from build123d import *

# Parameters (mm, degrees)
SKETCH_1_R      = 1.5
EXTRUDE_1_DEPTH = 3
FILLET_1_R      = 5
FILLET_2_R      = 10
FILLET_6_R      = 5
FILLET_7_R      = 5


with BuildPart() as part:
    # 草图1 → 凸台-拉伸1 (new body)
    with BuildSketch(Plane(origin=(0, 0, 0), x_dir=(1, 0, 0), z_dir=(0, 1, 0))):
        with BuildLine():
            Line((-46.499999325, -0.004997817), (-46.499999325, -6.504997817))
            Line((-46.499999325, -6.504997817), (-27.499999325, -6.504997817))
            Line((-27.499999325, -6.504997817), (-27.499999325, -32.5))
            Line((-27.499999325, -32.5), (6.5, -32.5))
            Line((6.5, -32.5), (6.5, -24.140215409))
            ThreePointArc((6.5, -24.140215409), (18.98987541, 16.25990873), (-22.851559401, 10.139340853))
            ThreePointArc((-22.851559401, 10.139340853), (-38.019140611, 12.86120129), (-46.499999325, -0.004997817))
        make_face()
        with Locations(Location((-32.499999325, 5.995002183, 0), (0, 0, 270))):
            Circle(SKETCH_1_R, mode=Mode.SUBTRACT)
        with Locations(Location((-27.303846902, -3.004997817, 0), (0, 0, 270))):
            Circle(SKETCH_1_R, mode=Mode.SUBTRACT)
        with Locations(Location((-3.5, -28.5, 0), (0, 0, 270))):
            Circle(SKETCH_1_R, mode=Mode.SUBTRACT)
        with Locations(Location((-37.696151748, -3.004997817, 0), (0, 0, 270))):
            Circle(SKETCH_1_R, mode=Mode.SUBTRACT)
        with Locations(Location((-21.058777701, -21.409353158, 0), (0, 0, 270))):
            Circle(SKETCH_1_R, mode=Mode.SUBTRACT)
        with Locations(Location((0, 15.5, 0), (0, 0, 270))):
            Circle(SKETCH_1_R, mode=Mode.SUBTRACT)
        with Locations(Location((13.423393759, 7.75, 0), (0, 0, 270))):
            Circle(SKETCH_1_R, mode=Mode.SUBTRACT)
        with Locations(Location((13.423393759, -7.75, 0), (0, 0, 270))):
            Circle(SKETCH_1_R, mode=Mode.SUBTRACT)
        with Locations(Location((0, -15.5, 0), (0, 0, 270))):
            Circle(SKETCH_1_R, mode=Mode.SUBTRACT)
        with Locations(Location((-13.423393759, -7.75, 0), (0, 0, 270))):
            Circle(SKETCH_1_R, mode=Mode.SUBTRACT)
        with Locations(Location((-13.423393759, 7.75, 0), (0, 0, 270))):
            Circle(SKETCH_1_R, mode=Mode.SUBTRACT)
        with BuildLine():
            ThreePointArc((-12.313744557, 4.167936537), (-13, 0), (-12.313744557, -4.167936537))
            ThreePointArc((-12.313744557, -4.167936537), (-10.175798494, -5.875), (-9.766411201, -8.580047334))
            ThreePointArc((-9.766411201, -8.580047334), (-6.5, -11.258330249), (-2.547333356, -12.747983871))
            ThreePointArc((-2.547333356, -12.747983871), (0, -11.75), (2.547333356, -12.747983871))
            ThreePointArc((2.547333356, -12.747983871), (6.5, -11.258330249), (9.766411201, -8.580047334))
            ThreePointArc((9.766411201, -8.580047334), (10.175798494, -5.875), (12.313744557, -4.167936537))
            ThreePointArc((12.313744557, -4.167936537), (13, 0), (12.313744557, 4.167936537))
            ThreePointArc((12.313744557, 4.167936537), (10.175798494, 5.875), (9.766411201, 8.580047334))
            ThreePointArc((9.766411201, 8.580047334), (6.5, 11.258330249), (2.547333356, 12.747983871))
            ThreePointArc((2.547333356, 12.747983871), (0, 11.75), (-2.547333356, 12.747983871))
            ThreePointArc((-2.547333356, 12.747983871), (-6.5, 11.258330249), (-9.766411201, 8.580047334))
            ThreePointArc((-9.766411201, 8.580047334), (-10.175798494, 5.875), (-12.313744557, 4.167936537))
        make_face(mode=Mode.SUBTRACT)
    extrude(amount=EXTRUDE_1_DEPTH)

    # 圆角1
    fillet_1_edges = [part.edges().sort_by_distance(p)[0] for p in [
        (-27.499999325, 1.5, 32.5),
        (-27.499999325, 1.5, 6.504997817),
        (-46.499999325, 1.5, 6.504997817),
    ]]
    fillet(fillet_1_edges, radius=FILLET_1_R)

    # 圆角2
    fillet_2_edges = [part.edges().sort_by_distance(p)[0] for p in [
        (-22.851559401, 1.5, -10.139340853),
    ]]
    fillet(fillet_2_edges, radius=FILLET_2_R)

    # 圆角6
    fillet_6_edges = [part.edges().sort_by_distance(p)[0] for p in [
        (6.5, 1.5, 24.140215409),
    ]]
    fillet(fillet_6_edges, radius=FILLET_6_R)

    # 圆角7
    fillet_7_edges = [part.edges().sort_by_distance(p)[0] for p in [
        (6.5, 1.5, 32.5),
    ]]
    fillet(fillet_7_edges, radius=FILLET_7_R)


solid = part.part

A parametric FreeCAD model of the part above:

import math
import FreeCAD as App
import Part
import Sketcher
Q = App.Units.Quantity


def edges_at(feature, points):
    """Names of the edges that pass closest to the given points."""
    edges = feature.Shape.Edges
    near = lambda p: min(range(len(edges)), key=lambda i: edges[i].distToShape(Part.Vertex(*p))[0])
    return sorted({f"Edge{near(p) + 1}" for p in points})

doc = App.newDocument("Part")
params = doc.addObject("Spreadsheet::Sheet", "Params")
for row, (alias, value) in enumerate([
    ("sketch1_diameter", "3 mm"),
    ("sketch1_radius", "25 mm"),
    ("sketch1_radius2", "14 mm"),
    ("sketch1_radius3", "13 mm"),
    ("sketch1_width", "19 mm"),
    ("pad1_length", "3 mm"),
    ("fillet_radius", "5 mm"),
    ("fillet2_radius", "10 mm"),
    ("fillet3_radius", "5 mm"),
    ("fillet4_radius", "5 mm"),
], start=1):
    params.set(f"A{row}", alias)
    params.set(f"B{row}", "=" + value)
    params.setAlias(f"B{row}", alias)

body = doc.addObject("PartDesign::Body", "Body")

# Sketch on XZ plane
sketch1 = body.newObject("Sketcher::SketchObject", "Sketch")
sketch1.AttachmentSupport = (doc.getObject("XZ_Plane"), [""])
sketch1.MapMode = "FlatFace"
sketch1.addGeometry([
    Part.LineSegment(App.Vector(-46.499999, 0.004998, 0), App.Vector(-46.499999, 6.504998, 0)),  # 0
    Part.LineSegment(App.Vector(-46.499999, 6.504998, 0), App.Vector(-27.499999, 6.504998, 0)),  # 1
    Part.LineSegment(App.Vector(-27.499999, 6.504998, 0), App.Vector(-27.499999, 32.5, 0)),  # 2
    Part.LineSegment(App.Vector(-27.499999, 32.5, 0), App.Vector(6.5, 32.5, 0)),  # 3
    Part.LineSegment(App.Vector(6.5, 32.5, 0), App.Vector(6.5, 24.140215, 0)),  # 4
    Part.ArcOfCircle(Part.Circle(App.Vector(0, 0, 0), App.Vector(0, 0, 1), 25), math.radians(-156.072921), math.radians(74.929938)),  # 5
    Part.ArcOfCircle(Part.Circle(App.Vector(-32.499999, 0.004998, 0), App.Vector(0, 0, 1), 14), math.radians(-180), math.radians(-46.435219)),  # 6
    Part.Circle(App.Vector(-21.058778, 21.409353, 0), App.Vector(0, 0, 1), 1.5),  # 7
    Part.Circle(App.Vector(-13.423394, 7.75, 0), App.Vector(0, 0, 1), 1.5),  # 8
    Part.Circle(App.Vector(-3.5, 28.5, 0), App.Vector(0, 0, 1), 1.5),  # 9
    Part.Circle(App.Vector(0, 15.5, 0), App.Vector(0, 0, 1), 1.5),  # 10
    Part.Circle(App.Vector(13.423394, 7.75, 0), App.Vector(0, 0, 1), 1.5),  # 11
    Part.Circle(App.Vector(-37.696152, 3.004998, 0), App.Vector(0, 0, 1), 1.5),  # 12
    Part.Circle(App.Vector(-27.303847, 3.004998, 0), App.Vector(0, 0, 1), 1.5),  # 13
    Part.Circle(App.Vector(-32.499999, -5.995002, 0), App.Vector(0, 0, 1), 1.5),  # 14
    Part.Circle(App.Vector(-13.423394, -7.75, 0), App.Vector(0, 0, 1), 1.5),  # 15
    Part.ArcOfCircle(Part.Circle(App.Vector(0, 0, 0), App.Vector(0, 0, 1), 13), math.radians(161.30015), math.radians(198.69985)),  # 16
    Part.ArcOfCircle(Part.Circle(App.Vector(-13.423394, -7.75, 0), App.Vector(0, 0, 1), 3.75), math.radians(-12.7881), math.radians(72.7881)),  # 17
    Part.ArcOfCircle(Part.Circle(App.Vector(0, 0, 0), App.Vector(0, 0, 1), 13), math.radians(-138.69985), math.radians(-101.30015)),  # 18
    Part.ArcOfCircle(Part.Circle(App.Vector(0, -15.5, 0), App.Vector(0, 0, 1), 3.75), math.radians(47.2119), math.radians(132.7881)),  # 19
    Part.ArcOfCircle(Part.Circle(App.Vector(0, 0, 0), App.Vector(0, 0, 1), 13), math.radians(-78.69985), math.radians(-41.30015)),  # 20
    Part.ArcOfCircle(Part.Circle(App.Vector(13.423394, -7.75, 0), App.Vector(0, 0, 1), 3.75), math.radians(107.2119), math.radians(192.7881)),  # 21
    Part.ArcOfCircle(Part.Circle(App.Vector(0, 0, 0), App.Vector(0, 0, 1), 13), math.radians(-18.69985), math.radians(18.69985)),  # 22
    Part.ArcOfCircle(Part.Circle(App.Vector(13.423394, 7.75, 0), App.Vector(0, 0, 1), 3.75), math.radians(167.2119), math.radians(252.7881)),  # 23
    Part.ArcOfCircle(Part.Circle(App.Vector(0, 0, 0), App.Vector(0, 0, 1), 13), math.radians(41.30015), math.radians(78.69985)),  # 24
    Part.ArcOfCircle(Part.Circle(App.Vector(0, 15.5, 0), App.Vector(0, 0, 1), 3.75), math.radians(-132.7881), math.radians(-47.2119)),  # 25
    Part.ArcOfCircle(Part.Circle(App.Vector(0, 0, 0), App.Vector(0, 0, 1), 13), math.radians(101.30015), math.radians(138.69985)),  # 26
    Part.ArcOfCircle(Part.Circle(App.Vector(-13.423394, 7.75, 0), App.Vector(0, 0, 1), 3.75), math.radians(-72.7881), math.radians(12.7881)),  # 27
    Part.Circle(App.Vector(0, -15.5, 0), App.Vector(0, 0, 1), 1.5),  # 28
    Part.Circle(App.Vector(13.423394, -7.75, 0), App.Vector(0, 0, 1), 1.5),  # 29
], False)
sketch1.addConstraint([
    Sketcher.Constraint("Coincident", 0, 2, 1, 1),
    Sketcher.Constraint("Coincident", 1, 2, 2, 1),
    Sketcher.Constraint("Coincident", 2, 2, 3, 1),
    Sketcher.Constraint("Coincident", 3, 2, 4, 1),
    Sketcher.Constraint("Coincident", 4, 2, 5, 2),
    Sketcher.Constraint("Coincident", 5, 1, 6, 2),
    Sketcher.Constraint("Tangent", 6, 1, 0, 1),
    Sketcher.Constraint("Coincident", 16, 2, 17, 2),
    Sketcher.Constraint("Coincident", 17, 1, 18, 1),
    Sketcher.Constraint("Coincident", 18, 2, 19, 2),
    Sketcher.Constraint("Coincident", 19, 1, 20, 1),
    Sketcher.Constraint("Coincident", 20, 2, 21, 2),
    Sketcher.Constraint("Coincident", 21, 1, 22, 1),
    Sketcher.Constraint("Coincident", 22, 2, 23, 2),
    Sketcher.Constraint("Coincident", 23, 1, 24, 1),
    Sketcher.Constraint("Coincident", 24, 2, 25, 2),
    Sketcher.Constraint("Coincident", 25, 1, 26, 1),
    Sketcher.Constraint("Coincident", 26, 2, 27, 2),
    Sketcher.Constraint("Coincident", 27, 1, 16, 1),
    Sketcher.Constraint("Vertical", 0),
    Sketcher.Constraint("Horizontal", 1),
    Sketcher.Constraint("Vertical", 2),
    Sketcher.Constraint("Horizontal", 3),
    Sketcher.Constraint("Vertical", 4),
    Sketcher.Constraint("Coincident", 5, 3, -1, 1),
    Sketcher.Constraint("Coincident", 16, 3, -1, 1),
    Sketcher.Constraint("Coincident", 18, 3, -1, 1),
    Sketcher.Constraint("Coincident", 20, 3, -1, 1),
    Sketcher.Constraint("Coincident", 22, 3, -1, 1),
    Sketcher.Constraint("Coincident", 24, 3, -1, 1),
    Sketcher.Constraint("Coincident", 26, 3, -1, 1),
    Sketcher.Constraint("Coincident", 17, 3, 15, 3),
    Sketcher.Constraint("Coincident", 23, 3, 11, 3),
    Sketcher.Constraint("Coincident", 25, 3, 10, 3),
    Sketcher.Constraint("Coincident", 27, 3, 8, 3),
    Sketcher.Constraint("Coincident", 28, 3, 19, 3),
    Sketcher.Constraint("Coincident", 29, 3, 21, 3),
    Sketcher.Constraint("Equal", 7, 8),
    Sketcher.Constraint("Equal", 8, 9),
    Sketcher.Constraint("Equal", 9, 10),
    Sketcher.Constraint("Equal", 10, 11),
    Sketcher.Constraint("Equal", 11, 12),
    Sketcher.Constraint("Equal", 12, 13),
    Sketcher.Constraint("Equal", 13, 14),
    Sketcher.Constraint("Equal", 14, 15),
    Sketcher.Constraint("Equal", 16, 18),
    Sketcher.Constraint("Equal", 17, 19),
    Sketcher.Constraint("Equal", 18, 20),
    Sketcher.Constraint("Equal", 19, 21),
    Sketcher.Constraint("Equal", 20, 22),
    Sketcher.Constraint("Equal", 21, 23),
    Sketcher.Constraint("Equal", 22, 24),
    Sketcher.Constraint("Equal", 23, 25),
    Sketcher.Constraint("Equal", 24, 26),
    Sketcher.Constraint("Equal", 25, 27),
    Sketcher.Constraint("Equal", 15, 28),
    Sketcher.Constraint("Equal", 28, 29),
    Sketcher.Constraint("Symmetric", 11, 3, 15, 3, -1, 1),
    Sketcher.Constraint("Symmetric", 10, 3, 19, 3, -1, 1),
    Sketcher.Constraint("Symmetric", 8, 3, 21, 3, -1, 1),
    Sketcher.Constraint("Symmetric", 8, 3, 11, 3, -2),
    Sketcher.Constraint("PointOnObject", 10, 3, -2),
    Sketcher.Constraint("Horizontal", 12, 3, 13, 3),
    Sketcher.Constraint("Vertical", 6, 3, 14, 3),
    Sketcher.Constraint("Diameter", 7, Q("3 mm")),
    Sketcher.Constraint("Radius", 5, Q("25 mm")),
    Sketcher.Constraint("Radius", 6, Q("14 mm")),
    Sketcher.Constraint("Radius", 16, Q("13 mm")),
    Sketcher.Constraint("DistanceX", 1, 1, 1, 2, Q("19 mm")),
    Sketcher.Constraint("DistanceX", 3, 1, 3, 2, Q("33.999999 mm")),
    Sketcher.Constraint("Radius", 17, Q("3.75 mm")),
    Sketcher.Constraint("DistanceY", 0, 1, 0, 2, Q("6.5 mm")),
    Sketcher.Constraint("DistanceX", 6, 3, 9, 3, Q("28.999999 mm")),
    Sketcher.Constraint("DistanceY", 10, 3, 9, 3, Q("13 mm")),
    Sketcher.Constraint("DistanceY", 6, 3, 12, 3, Q("3 mm")),
    Sketcher.Constraint("DistanceY", 14, 3, 6, 3, Q("6 mm")),
    Sketcher.Constraint("DistanceY", 9, 3, 2, 2, Q("4 mm")),
    Sketcher.Constraint("DistanceX", 6, 3, -1, 1, Q("32.499999 mm")),
    Sketcher.Constraint("DistanceY", -1, 1, 9, 3, Q("28.5 mm")),
    Sketcher.Constraint("DistanceY", 15, 3, 8, 3, Q("15.5 mm")),
    Sketcher.Constraint("DistanceY", 2, 1, 2, 2, Q("25.995002 mm")),
    Sketcher.Constraint("DistanceX", 12, 3, -1, 1, Q("37.696152 mm")),
    Sketcher.Constraint("DistanceX", 17, 1, -1, 1, Q("9.766411 mm")),
    Sketcher.Constraint("DistanceX", 6, 3, 7, 3, Q("11.441222 mm")),
    Sketcher.Constraint("DistanceX", 13, 3, 7, 3, Q("6.245069 mm")),
    Sketcher.Constraint("DistanceY", -1, 1, 7, 3, Q("21.409353 mm")),
])
sketch1.setExpression("Constraints[64]", "Params.sketch1_diameter")
sketch1.setExpression("Constraints[65]", "Params.sketch1_radius")
sketch1.setExpression("Constraints[66]", "Params.sketch1_radius2")
sketch1.setExpression("Constraints[67]", "Params.sketch1_radius3")
sketch1.setExpression("Constraints[68]", "Params.sketch1_width")
pad1 = body.newObject("PartDesign::Pad", "Pad")
pad1.Profile = sketch1
pad1.setExpression("Length", "Params.pad1_length")
pad1.Reversed = True
doc.recompute()

fillet = body.newObject("PartDesign::Fillet", "Fillet")
fillet.Base = (pad1, edges_at(pad1, [(-27.5, 1.5, 32.5), (-27.5, 1.5, 6.505), (-46.5, 1.5, 6.505)]))
fillet.setExpression("Radius", "Params.fillet_radius")
doc.recompute()

fillet2 = body.newObject("PartDesign::Fillet", "Fillet001")
fillet2.Base = (fillet, edges_at(fillet, [(-22.852, 1.5, -10.139)]))
fillet2.setExpression("Radius", "Params.fillet2_radius")
doc.recompute()

fillet3 = body.newObject("PartDesign::Fillet", "Fillet002")
fillet3.Base = (fillet2, edges_at(fillet2, [(6.5, 1.5, 24.14)]))
fillet3.setExpression("Radius", "Params.fillet3_radius")
doc.recompute()

fillet4 = body.newObject("PartDesign::Fillet", "Fillet003")
fillet4.Base = (fillet3, edges_at(fillet3, [(6.5, 1.5, 32.5)]))
fillet4.setExpression("Radius", "Params.fillet4_radius")

doc.recompute()
